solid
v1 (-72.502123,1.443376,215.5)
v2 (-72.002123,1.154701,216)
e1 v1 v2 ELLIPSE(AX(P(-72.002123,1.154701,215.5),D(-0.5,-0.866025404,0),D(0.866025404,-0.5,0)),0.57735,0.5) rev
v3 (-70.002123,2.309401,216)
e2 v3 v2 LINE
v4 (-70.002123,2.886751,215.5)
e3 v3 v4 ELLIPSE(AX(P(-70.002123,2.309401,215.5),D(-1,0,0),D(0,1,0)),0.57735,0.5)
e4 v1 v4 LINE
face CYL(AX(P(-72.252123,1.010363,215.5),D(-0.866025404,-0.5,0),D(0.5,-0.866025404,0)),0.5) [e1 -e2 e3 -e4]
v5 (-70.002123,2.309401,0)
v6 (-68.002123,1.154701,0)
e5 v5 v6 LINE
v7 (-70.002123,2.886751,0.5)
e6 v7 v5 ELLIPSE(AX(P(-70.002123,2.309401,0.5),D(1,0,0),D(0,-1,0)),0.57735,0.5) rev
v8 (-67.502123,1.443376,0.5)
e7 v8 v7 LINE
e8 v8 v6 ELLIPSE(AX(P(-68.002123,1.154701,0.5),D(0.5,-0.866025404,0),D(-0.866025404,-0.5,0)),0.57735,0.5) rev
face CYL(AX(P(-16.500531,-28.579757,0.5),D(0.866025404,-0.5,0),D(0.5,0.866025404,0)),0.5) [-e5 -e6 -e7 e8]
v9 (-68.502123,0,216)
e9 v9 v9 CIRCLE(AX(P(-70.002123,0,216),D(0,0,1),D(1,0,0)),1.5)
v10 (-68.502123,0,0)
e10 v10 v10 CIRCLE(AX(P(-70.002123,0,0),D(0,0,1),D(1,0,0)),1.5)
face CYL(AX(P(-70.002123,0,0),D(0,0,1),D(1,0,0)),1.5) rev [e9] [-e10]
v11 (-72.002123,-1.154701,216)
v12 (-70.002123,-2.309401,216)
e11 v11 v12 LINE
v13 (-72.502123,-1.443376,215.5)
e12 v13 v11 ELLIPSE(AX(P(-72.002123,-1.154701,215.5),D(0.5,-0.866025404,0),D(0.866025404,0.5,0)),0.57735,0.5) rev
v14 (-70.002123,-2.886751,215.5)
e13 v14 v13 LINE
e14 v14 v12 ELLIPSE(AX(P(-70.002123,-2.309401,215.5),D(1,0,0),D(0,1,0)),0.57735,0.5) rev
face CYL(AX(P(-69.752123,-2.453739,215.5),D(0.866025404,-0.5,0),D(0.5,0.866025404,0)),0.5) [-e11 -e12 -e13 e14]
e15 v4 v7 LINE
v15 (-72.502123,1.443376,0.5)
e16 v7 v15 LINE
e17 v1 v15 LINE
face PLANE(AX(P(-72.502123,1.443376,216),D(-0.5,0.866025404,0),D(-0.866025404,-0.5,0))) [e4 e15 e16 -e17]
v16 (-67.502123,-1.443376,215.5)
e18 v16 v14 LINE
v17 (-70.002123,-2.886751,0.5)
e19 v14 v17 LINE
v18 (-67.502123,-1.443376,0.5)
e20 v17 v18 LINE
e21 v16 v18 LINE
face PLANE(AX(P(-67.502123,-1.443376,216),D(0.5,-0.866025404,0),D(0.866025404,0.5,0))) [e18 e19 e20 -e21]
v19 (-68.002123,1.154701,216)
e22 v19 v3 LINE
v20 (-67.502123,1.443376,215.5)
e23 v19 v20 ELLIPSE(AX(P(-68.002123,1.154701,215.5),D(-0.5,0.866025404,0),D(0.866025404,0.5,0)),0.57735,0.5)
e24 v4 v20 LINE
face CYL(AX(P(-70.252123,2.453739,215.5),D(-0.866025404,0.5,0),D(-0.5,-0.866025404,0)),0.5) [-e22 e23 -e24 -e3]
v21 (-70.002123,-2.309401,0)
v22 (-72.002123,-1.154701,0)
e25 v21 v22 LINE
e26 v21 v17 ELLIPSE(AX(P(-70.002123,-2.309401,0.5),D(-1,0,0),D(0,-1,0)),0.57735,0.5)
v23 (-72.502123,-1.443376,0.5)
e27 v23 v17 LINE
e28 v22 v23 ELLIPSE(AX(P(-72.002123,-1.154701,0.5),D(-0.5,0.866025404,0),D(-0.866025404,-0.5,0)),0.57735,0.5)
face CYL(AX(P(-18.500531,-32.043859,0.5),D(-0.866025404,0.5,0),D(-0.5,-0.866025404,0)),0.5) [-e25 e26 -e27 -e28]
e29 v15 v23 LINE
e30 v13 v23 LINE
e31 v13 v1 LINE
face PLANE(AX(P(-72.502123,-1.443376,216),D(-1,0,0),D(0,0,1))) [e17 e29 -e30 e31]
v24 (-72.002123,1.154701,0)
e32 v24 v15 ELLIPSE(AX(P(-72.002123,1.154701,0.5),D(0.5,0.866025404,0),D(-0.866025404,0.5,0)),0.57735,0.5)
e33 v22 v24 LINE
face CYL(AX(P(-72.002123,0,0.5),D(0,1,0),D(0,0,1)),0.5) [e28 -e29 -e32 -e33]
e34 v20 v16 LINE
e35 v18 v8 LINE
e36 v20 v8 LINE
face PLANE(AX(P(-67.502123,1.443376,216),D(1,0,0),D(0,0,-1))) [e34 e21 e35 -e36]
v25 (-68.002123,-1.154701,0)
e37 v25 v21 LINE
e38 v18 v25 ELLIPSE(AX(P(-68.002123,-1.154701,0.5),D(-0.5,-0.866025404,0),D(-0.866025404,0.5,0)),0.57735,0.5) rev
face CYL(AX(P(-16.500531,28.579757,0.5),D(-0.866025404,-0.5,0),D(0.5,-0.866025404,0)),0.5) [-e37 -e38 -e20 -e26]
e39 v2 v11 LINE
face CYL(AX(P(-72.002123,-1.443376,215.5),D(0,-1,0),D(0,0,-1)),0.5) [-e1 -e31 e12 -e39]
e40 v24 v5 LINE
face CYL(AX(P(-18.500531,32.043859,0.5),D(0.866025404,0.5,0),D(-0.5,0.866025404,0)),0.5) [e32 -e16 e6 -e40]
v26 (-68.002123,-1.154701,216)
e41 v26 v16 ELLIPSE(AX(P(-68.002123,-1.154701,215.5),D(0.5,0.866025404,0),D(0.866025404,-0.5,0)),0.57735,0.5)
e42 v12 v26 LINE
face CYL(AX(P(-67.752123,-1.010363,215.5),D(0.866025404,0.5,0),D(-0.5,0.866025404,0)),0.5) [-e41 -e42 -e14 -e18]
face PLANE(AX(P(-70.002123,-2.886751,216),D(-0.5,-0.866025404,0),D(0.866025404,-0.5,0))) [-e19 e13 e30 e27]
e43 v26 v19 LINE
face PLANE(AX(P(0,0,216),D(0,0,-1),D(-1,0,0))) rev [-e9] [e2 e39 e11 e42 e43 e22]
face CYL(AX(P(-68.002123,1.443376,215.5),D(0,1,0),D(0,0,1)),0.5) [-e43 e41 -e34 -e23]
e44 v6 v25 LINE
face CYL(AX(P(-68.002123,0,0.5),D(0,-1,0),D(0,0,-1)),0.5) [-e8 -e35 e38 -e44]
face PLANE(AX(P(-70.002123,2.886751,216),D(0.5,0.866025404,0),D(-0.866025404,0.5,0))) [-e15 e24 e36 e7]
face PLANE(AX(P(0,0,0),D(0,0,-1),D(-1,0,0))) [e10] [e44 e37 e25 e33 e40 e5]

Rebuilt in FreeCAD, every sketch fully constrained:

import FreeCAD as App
import Part
import Sketcher
from FreeCAD import Vector
Q = App.Units.Quantity


def edges_at(feature, points):
    """Names of the edges that pass closest to the given points."""
    edges = feature.Shape.Edges
    near = lambda p: min(range(len(edges)), key=lambda i: edges[i].distToShape(Part.Vertex(*p))[0])
    return sorted({f"Edge{near(p) + 1}" for p in points})


def add_polygon(sketch, points):
    """Adds a closed chain of lines whose ends are joined by coincident constraints."""
    first, n = sketch.GeometryCount, len(points)
    for a, b in zip(points, points[1:] + points[:1]):
        sketch.addGeometry(Part.LineSegment(App.Vector(*a, 0), App.Vector(*b, 0)), False)
    for i in range(n):
        sketch.addConstraint(Sketcher.Constraint("Coincident", first + i, 2, first + (i + 1) % n, 1))

doc = App.newDocument("Part")
params = doc.addObject("Spreadsheet::Sheet", "Params")
for row, (alias, value) in enumerate([
    ("pad1_length", "216 mm"),
    ("fillet_radius", "0.5 mm"),
    ("sketch2_diameter", "3 mm"),
], start=1):
    params.set(f"A{row}", alias)
    params.set(f"B{row}", "=" + value)
    params.setAlias(f"B{row}", alias)

body = doc.addObject("PartDesign::Body", "Body")

sketch1 = body.newObject("Sketcher::SketchObject", "Sketch")
sketch1.AttachmentSupport = (doc.getObject("XY_Plane"), [""])
sketch1.MapMode = "FlatFace"
add_polygon(sketch1, [(-67.5, -1.4), (-70, -2.9), (-72.5, -1.4), (-72.5, 1.4), (-70, 2.9), (-67.5, 1.4)])
sketch1.addConstraint(Sketcher.Constraint("Vertical", 2))
sketch1.addConstraint(Sketcher.Constraint("Vertical", 5))
sketch1.addConstraint(Sketcher.Constraint("Symmetric", 0, 2, 3, 2, -1))
sketch1.addConstraint(Sketcher.Constraint("Parallel", 0, 3))
sketch1.addConstraint(Sketcher.Constraint("Parallel", 1, 4))
sketch1.addConstraint(Sketcher.Constraint("Horizontal", 2, 2, 4, 2))
sketch1.addConstraint(Sketcher.Constraint("Horizontal", 1, 2, 5, 2))
sketch1.addConstraint(Sketcher.Constraint("Angle", 0, Q("-150 deg")))
sketch1.addConstraint(Sketcher.Constraint("DistanceX", 2, 2, 4, 2, 5.0))
sketch1.addConstraint(Sketcher.Constraint("DistanceY", 2, 1, 2, 2, 2.886751))
sketch1.addConstraint(Sketcher.Constraint("DistanceX", 0, 2, -1, 1, 70.002123))
pad1 = body.newObject("PartDesign::Pad", "Pad")
pad1.Profile = sketch1
pad1.setExpression("Length", "Params.pad1_length")
doc.recompute()

fillet = body.newObject("PartDesign::Fillet", "Fillet")
fillet.Base = (pad1, edges_at(pad1, [
    (-71.252, -2.165, 216),
    (-72.502, 0, 216),
    (-71.252, 2.165, 216),
    (-68.752, 2.165, 216),
    (-67.502, 0, 216),
    (-68.752, 2.165, 0),
    (-71.252, 2.165, 0),
    (-72.502, 0, 0),
    (-71.252, -2.165, 0),
    (-68.752, -2.165, 0),
    (-67.502, 0, 0),
    (-68.752, -2.165, 216),
]))
fillet.setExpression("Radius", "Params.fillet_radius")

sketch2 = body.newObject("Sketcher::SketchObject", "Sketch001")
sketch2.AttachmentSupport = (doc.getObject("XY_Plane"), [""])
sketch2.MapMode = "FlatFace"
sketch2.AttachmentOffset = App.Placement(Vector(0, 0, 216), App.Rotation())
sketch2.addGeometry(Part.Circle(Vector(-70, 0, 0), Vector(0, 0, 1), 1.5), False)
sketch2.addConstraint(Sketcher.Constraint("PointOnObject", 0, 3, -1))
sketch2.addConstraint(Sketcher.Constraint("Diameter", 0, 3.0))
sketch2.addConstraint(Sketcher.Constraint("DistanceX", 0, 3, -1, 1, 70.002123))
sketch2.setExpression("Constraints[1]", "Params.sketch2_diameter")
pocket1 = body.newObject("PartDesign::Pocket", "Pocket")
pocket1.Profile = sketch2
pocket1.Type = "ThroughAll"

doc.recompute()
